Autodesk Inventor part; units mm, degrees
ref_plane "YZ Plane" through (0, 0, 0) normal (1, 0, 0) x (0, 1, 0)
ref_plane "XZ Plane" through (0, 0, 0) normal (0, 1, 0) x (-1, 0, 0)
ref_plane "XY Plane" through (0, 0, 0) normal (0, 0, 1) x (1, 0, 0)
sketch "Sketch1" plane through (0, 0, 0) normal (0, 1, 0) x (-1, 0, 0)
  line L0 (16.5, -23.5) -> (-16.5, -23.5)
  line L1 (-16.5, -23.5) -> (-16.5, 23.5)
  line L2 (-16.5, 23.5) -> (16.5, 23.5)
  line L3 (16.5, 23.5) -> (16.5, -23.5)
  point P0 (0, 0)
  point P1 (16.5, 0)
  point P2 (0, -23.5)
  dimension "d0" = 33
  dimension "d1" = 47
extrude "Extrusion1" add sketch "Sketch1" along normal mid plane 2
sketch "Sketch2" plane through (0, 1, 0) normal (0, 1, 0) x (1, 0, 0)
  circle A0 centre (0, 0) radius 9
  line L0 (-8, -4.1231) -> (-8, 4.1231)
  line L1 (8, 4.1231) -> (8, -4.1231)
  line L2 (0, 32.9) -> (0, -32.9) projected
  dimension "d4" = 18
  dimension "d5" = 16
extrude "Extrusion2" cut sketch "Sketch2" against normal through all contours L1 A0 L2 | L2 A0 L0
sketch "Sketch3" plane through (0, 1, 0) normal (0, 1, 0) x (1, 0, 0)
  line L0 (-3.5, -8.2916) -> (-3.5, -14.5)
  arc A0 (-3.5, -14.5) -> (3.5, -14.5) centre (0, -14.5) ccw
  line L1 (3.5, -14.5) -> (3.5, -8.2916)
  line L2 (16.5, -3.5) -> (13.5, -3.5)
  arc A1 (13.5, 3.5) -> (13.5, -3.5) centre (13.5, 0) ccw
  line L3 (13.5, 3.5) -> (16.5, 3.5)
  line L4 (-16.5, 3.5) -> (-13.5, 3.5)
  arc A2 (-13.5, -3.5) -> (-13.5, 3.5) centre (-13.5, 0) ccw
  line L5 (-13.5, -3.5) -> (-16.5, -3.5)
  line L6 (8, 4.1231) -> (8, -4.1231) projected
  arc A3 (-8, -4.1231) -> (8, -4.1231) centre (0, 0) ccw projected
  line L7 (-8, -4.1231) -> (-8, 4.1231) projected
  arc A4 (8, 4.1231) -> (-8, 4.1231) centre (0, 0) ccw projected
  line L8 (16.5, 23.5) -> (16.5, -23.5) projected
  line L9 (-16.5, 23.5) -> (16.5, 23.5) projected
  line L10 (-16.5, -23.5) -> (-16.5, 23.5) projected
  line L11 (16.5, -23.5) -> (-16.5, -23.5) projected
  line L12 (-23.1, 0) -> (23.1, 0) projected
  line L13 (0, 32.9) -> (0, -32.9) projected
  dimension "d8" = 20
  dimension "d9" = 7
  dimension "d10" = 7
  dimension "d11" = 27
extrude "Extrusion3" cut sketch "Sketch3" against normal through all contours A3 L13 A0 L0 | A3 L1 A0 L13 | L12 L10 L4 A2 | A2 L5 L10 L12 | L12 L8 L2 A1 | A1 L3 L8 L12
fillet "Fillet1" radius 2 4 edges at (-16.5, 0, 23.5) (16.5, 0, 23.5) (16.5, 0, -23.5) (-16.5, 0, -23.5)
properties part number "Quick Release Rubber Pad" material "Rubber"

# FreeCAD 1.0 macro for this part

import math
import FreeCAD as App
import Part
import Sketcher

V = App.Vector


def edges_at(feature, points):
    """Names of the edges that pass closest to the given points."""
    edges = feature.Shape.Edges
    near = lambda p: min(range(len(edges)), key=lambda i: edges[i].distToShape(Part.Vertex(*p))[0])
    return sorted({f"Edge{near(p) + 1}" for p in points})

doc = App.newDocument("Part")
body = doc.addObject("PartDesign::Body", "Body")

sketch1 = doc.addObject("Sketcher::SketchObject", "Sketch")
body.addObject(sketch1)
sketch1.AttachmentSupport = (doc.XZ_Plane, [""])
sketch1.MapMode = "FlatFace"
sketch1.addGeometry([
    Part.LineSegment(V(16, -24, 0), V(-16, -24, 0)),
    Part.LineSegment(V(-16, -24, 0), V(-16, 24, 0)),
    Part.LineSegment(V(-16, 24, 0), V(16, 24, 0)),
    Part.LineSegment(V(16, 24, 0), V(16, -24, 0)),
], False)
sketch1.addConstraint([
    Sketcher.Constraint("Coincident", 0, 2, 1, 1),
    Sketcher.Constraint("Coincident", 1, 2, 2, 1),
    Sketcher.Constraint("Coincident", 2, 2, 3, 1),
    Sketcher.Constraint("Coincident", 3, 2, 0, 1),
    Sketcher.Constraint("Horizontal", 0),
    Sketcher.Constraint("Vertical", 1),
    Sketcher.Constraint("Horizontal", 2),
    Sketcher.Constraint("Vertical", 3),
    Sketcher.Constraint("Symmetric", 0, 2, 2, 2, -1, 1),
    Sketcher.Constraint("DistanceX", 0, 2, 0, 1, 33.0),
    Sketcher.Constraint("DistanceY", 1, 1, 1, 2, 47.0),
])
pad1 = doc.addObject("PartDesign::Pad", "Pad")
body.addObject(pad1)
pad1.Profile = sketch1
pad1.Length = 2
pad1.Midplane = True

sketch2 = doc.addObject("Sketcher::SketchObject", "Sketch001")
body.addObject(sketch2)
sketch2.AttachmentSupport = (doc.XZ_Plane, [""])
sketch2.MapMode = "FlatFace"
sketch2.AttachmentOffset = App.Placement(V(0, 0, -1), App.Rotation())
sketch2.addGeometry([
    Part.LineSegment(V(8, 4, 0), V(8, -4, 0)),
    Part.ArcOfCircle(Part.Circle(V(0, 0, 0), V(0, 0, 1), 9), math.radians(-153), math.radians(-27)),
    Part.LineSegment(V(-8, -4, 0), V(-8, 4, 0)),
    Part.ArcOfCircle(Part.Circle(V(0, 0, 0), V(0, 0, 1), 9), math.radians(27), math.radians(153)),
], False)
sketch2.addConstraint([
    Sketcher.Constraint("Coincident", 0, 2, 1, 2),
    Sketcher.Constraint("Coincident", 1, 1, 2, 1),
    Sketcher.Constraint("Coincident", 2, 2, 3, 2),
    Sketcher.Constraint("Coincident", 3, 1, 0, 1),
    Sketcher.Constraint("Vertical", 0),
    Sketcher.Constraint("Vertical", 2),
    Sketcher.Constraint("Coincident", 1, 3, -1, 1),
    Sketcher.Constraint("Coincident", 3, 3, -1, 1),
    Sketcher.Constraint("Equal", 1, 3),
    Sketcher.Constraint("Horizontal", 0, 2, 1, 1),
    Sketcher.Constraint("Radius", 1, 9.0),
    Sketcher.Constraint("DistanceX", 1, 1, 0, 2, 16.0),
])
pocket1 = doc.addObject("PartDesign::Pocket", "Pocket")
body.addObject(pocket1)
pocket1.Profile = sketch2
pocket1.Type = "ThroughAll"
pocket1.Reversed = True

sketch3 = doc.addObject("Sketcher::SketchObject", "Sketch002")
body.addObject(sketch3)
sketch3.AttachmentSupport = (doc.XZ_Plane, [""])
sketch3.MapMode = "FlatFace"
sketch3.AttachmentOffset = App.Placement(V(0, 0, -1), App.Rotation())
sketch3.addGeometry([
    Part.LineSegment(V(-3.5, 8.3, 0), V(-3.5, 14.5, 0)),
    Part.ArcOfCircle(Part.Circle(V(0, 14.5, 0), V(0, 0, 1), 3.5), math.radians(0), math.radians(180)),
    Part.LineSegment(V(3.5, 14.5, 0), V(3.5, 8.3, 0)),
    Part.ArcOfCircle(Part.Circle(V(0, 0, 0), V(0, 0, 1), 9), math.radians(67), math.radians(113)),
    Part.LineSegment(V(-16.5, -3.5, 0), V(-16.5, 3.5, 0)),
    Part.LineSegment(V(-16.5, 3.5, 0), V(-13.5, 3.5, 0)),
    Part.ArcOfCircle(Part.Circle(V(-13.5, 0, 0), V(0, 0, 1), 3.5), math.radians(-90), math.radians(90)),
    Part.LineSegment(V(-13.5, -3.5, 0), V(-16.5, -3.5, 0)),
    Part.LineSegment(V(16.5, 3.5, 0), V(16.5, -3.5, 0)),
    Part.LineSegment(V(16.5, -3.5, 0), V(13.5, -3.5, 0)),
    Part.ArcOfCircle(Part.Circle(V(13.5, 0, 0), V(0, 0, 1), 3.5), math.radians(90), math.radians(270)),
    Part.LineSegment(V(13.5, 3.5, 0), V(16.5, 3.5, 0)),
], False)
sketch3.addConstraint([
    Sketcher.Constraint("Tangent", 0, 2, 1, 2),
    Sketcher.Constraint("Tangent", 1, 1, 2, 1),
    Sketcher.Constraint("Coincident", 2, 2, 3, 1),
    Sketcher.Constraint("Coincident", 3, 2, 0, 1),
    Sketcher.Constraint("Coincident", 4, 2, 5, 1),
    Sketcher.Constraint("Tangent", 5, 2, 6, 2),
    Sketcher.Constraint("Tangent", 6, 1, 7, 1),
    Sketcher.Constraint("Coincident", 7, 2, 4, 1),
    Sketcher.Constraint("Coincident", 8, 2, 9, 1),
    Sketcher.Constraint("Tangent", 9, 2, 10, 2),
    Sketcher.Constraint("Tangent", 10, 1, 11, 1),
    Sketcher.Constraint("Coincident", 11, 2, 8, 1),
    Sketcher.Constraint("Vertical", 0),
    Sketcher.Constraint("Vertical", 2),
    Sketcher.Constraint("Vertical", 4),
    Sketcher.Constraint("Horizontal", 5),
    Sketcher.Constraint("Horizontal", 7),
    Sketcher.Constraint("Vertical", 8),
    Sketcher.Constraint("Horizontal", 9),
    Sketcher.Constraint("Horizontal", 11),
    Sketcher.Constraint("Coincident", 3, 3, -1, 1),
    Sketcher.Constraint("Equal", 1, 6),
    Sketcher.Constraint("Equal", 6, 10),
    Sketcher.Constraint("Symmetric", 6, 3, 10, 3, -1, 1),
    Sketcher.Constraint("Symmetric", 7, 2, 8, 2, -2),
    Sketcher.Constraint("PointOnObject", 1, 3, -2),
    Sketcher.Constraint("Radius", 1, 3.5),
    Sketcher.Constraint("Radius", 3, 9.0),
    Sketcher.Constraint("DistanceX", 6, 3, 10, 3, 27.0),
    Sketcher.Constraint("DistanceX", 3, 2, 8, 2, 20.0),
    Sketcher.Constraint("DistanceY", 4, 2, 0, 2, 11.0),
])
pocket2 = doc.addObject("PartDesign::Pocket", "Pocket001")
body.addObject(pocket2)
pocket2.Profile = sketch3
pocket2.Type = "ThroughAll"
pocket2.Reversed = True
doc.recompute()

fillet = doc.addObject("PartDesign::Fillet", "Fillet")
body.addObject(fillet)
fillet.Base = (pocket2, edges_at(pocket2, [
    (-16.5, 0, 23.5),
    (16.5, 0, 23.5),
    (16.5, 0, -23.5),
    (-16.5, 0, -23.5),
]))
fillet.Radius = 2

doc.recompute()
